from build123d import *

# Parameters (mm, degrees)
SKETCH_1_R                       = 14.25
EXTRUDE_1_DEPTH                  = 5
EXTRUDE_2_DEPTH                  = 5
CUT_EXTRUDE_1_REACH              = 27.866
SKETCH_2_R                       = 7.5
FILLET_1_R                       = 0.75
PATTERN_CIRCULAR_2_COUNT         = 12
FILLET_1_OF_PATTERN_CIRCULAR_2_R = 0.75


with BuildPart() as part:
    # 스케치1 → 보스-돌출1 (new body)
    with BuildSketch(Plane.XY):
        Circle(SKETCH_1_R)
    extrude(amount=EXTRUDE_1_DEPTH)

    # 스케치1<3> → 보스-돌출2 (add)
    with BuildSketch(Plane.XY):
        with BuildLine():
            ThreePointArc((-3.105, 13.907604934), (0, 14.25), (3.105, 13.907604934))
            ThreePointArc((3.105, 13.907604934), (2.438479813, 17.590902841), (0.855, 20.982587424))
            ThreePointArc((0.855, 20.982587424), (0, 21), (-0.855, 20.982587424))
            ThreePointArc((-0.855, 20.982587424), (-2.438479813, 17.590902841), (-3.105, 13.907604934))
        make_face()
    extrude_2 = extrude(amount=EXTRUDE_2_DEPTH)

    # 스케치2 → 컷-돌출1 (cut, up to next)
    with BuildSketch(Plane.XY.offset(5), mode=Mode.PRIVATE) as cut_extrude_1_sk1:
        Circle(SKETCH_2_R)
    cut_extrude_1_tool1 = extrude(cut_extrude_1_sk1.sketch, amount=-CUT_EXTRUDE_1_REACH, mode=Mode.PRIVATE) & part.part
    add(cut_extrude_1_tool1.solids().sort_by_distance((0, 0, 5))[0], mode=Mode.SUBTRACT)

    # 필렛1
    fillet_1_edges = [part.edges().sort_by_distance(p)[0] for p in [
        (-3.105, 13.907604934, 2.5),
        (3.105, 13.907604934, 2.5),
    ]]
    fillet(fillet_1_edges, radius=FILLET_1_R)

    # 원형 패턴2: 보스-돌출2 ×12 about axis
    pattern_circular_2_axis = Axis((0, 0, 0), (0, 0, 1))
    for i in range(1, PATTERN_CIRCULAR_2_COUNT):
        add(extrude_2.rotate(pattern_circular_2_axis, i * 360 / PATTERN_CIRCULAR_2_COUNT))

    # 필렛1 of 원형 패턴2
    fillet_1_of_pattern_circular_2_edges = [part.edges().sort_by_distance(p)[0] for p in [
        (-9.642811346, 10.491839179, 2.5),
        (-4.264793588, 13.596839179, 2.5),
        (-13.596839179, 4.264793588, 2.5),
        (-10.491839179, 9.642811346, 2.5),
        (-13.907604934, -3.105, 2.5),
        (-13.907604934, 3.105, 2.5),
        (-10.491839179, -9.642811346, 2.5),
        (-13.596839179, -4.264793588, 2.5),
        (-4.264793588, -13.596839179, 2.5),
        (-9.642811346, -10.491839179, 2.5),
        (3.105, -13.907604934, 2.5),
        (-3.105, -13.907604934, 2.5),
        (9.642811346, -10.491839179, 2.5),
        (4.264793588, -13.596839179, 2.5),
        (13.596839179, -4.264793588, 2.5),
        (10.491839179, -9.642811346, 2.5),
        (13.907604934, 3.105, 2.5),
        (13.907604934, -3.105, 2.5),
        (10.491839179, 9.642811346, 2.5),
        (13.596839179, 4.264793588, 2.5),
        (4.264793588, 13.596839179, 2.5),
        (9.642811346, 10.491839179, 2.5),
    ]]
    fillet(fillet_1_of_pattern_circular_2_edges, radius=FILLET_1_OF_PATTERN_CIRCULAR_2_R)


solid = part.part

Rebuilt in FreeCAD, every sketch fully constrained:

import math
import FreeCAD as App
import Part
import Sketcher

V = App.Vector


def edges_at(feature, points):
    """Names of the edges that pass closest to the given points."""
    edges = feature.Shape.Edges
    near = lambda p: min(range(len(edges)), key=lambda i: edges[i].distToShape(Part.Vertex(*p))[0])
    return sorted({f"Edge{near(p) + 1}" for p in points})

doc = App.newDocument("Part")
body = doc.addObject("PartDesign::Body", "Body")

sketch1 = doc.addObject("Sketcher::SketchObject", "Sketch")
body.addObject(sketch1)
sketch1.AttachmentSupport = (doc.XY_Plane, [""])
sketch1.MapMode = "FlatFace"
sketch1.addGeometry(Part.Circle(V(0, 0, 0), V(0, 0, 1), 14), False)
sketch1.addConstraint([
    Sketcher.Constraint("Coincident", 0, 3, -1, 1),
    Sketcher.Constraint("Diameter", 0, 28.5),
])
pad1 = doc.addObject("PartDesign::Pad", "Pad")
body.addObject(pad1)
pad1.Profile = sketch1
pad1.Length = 5

sketch2 = doc.addObject("Sketcher::SketchObject", "Sketch001")
body.addObject(sketch2)
sketch2.AttachmentSupport = (doc.XY_Plane, [""])
sketch2.MapMode = "FlatFace"
sketch2.addGeometry([
    Part.ArcOfCircle(Part.Circle(V(0, 0, 0), V(0, 0, 1), 14.2), math.radians(77), math.radians(103)),
    Part.ArcOfCircle(Part.Circle(V(-11.4, 13.2, 0), V(0, 0, 1), 14.6), math.radians(3), math.radians(32)),
    Part.ArcOfCircle(Part.Circle(V(0, 0, 0), V(0, 0, 1), 21), math.radians(87.67), math.radians(92.33)),
    Part.ArcOfCircle(Part.Circle(V(11.4, 13.2, 0), V(0, 0, 1), 14.6), math.radians(148), math.radians(177)),
], False)
sketch2.addConstraint([
    Sketcher.Constraint("Coincident", 0, 1, 1, 1),
    Sketcher.Constraint("Coincident", 1, 2, 2, 1),
    Sketcher.Constraint("Coincident", 2, 2, 3, 1),
    Sketcher.Constraint("Coincident", 3, 2, 0, 2),
    Sketcher.Constraint("Coincident", 0, 3, -1, 1),
    Sketcher.Constraint("Coincident", 2, 3, -1, 1),
    Sketcher.Constraint("Equal", 1, 3),
    Sketcher.Constraint("Symmetric", 1, 3, 3, 3, -2),
    Sketcher.Constraint("Radius", 2, 21.0),
    Sketcher.Constraint("Radius", 0, 14.25),
    Sketcher.Constraint("Radius", 1, 14.561159),
    Sketcher.Constraint("DistanceX", 1, 2, 0, 1, 2.25),
    Sketcher.Constraint("DistanceX", 2, 2, 1, 2, 1.71),
])
pad2 = doc.addObject("PartDesign::Pad", "Pad001")
body.addObject(pad2)
pad2.Profile = sketch2
pad2.Length = 5

sketch3 = doc.addObject("Sketcher::SketchObject", "Sketch002")
body.addObject(sketch3)
sketch3.AttachmentSupport = (doc.XY_Plane, [""])
sketch3.MapMode = "FlatFace"
sketch3.AttachmentOffset = App.Placement(V(0, 0, 5), App.Rotation())
sketch3.addGeometry(Part.Circle(V(0, 0, 0), V(0, 0, 1), 8), False)
sketch3.addConstraint([
    Sketcher.Constraint("Coincident", 0, 3, -1, 1),
    Sketcher.Constraint("Diameter", 0, 15.0),
])
pocket1 = doc.addObject("PartDesign::Pocket", "Pocket")
body.addObject(pocket1)
pocket1.Profile = sketch3
pocket1.Type = "UpToFirst"
doc.recompute()

fillet = doc.addObject("PartDesign::Fillet", "Fillet")
body.addObject(fillet)
fillet.Base = (pocket1, edges_at(pocket1, [(-3.105, 13.908, 2.5), (3.105, 13.908, 2.5)]))
fillet.Radius = 0.75
doc.recompute()

polarpattern = doc.addObject("PartDesign::PolarPattern", "PolarPattern")
body.addObject(polarpattern)
polarpattern.Originals = [pad2]
polarpattern.Axis = (doc.Z_Axis, [""])
polarpattern.Angle = 360
polarpattern.Occurrences = 12
body.Tip = polarpattern
doc.recompute()

fillet2 = doc.addObject("PartDesign::Fillet", "Fillet001")
body.addObject(fillet2)
fillet2.Base = (polarpattern, edges_at(polarpattern, [
    (-9.643, 10.492, 2.5),
    (-4.265, 13.597, 2.5),
    (-13.597, 4.265, 2.5),
    (-10.492, 9.643, 2.5),
    (-13.908, -3.105, 2.5),
    (-13.908, 3.105, 2.5),
    (-10.492, -9.643, 2.5),
    (-13.597, -4.265, 2.5),
    (-4.265, -13.597, 2.5),
    (-9.643, -10.492, 2.5),
    (3.105, -13.908, 2.5),
    (-3.105, -13.908, 2.5),
    (9.643, -10.492, 2.5),
    (4.265, -13.597, 2.5),
    (13.597, -4.265, 2.5),
    (10.492, -9.643, 2.5),
    (13.908, 3.105, 2.5),
    (13.908, -3.105, 2.5),
    (10.492, 9.643, 2.5),
    (13.597, 4.265, 2.5),
    (4.265, 13.597, 2.5),
    (9.643, 10.492, 2.5),
]))
fillet2.Radius = 0.75

doc.recompute()
